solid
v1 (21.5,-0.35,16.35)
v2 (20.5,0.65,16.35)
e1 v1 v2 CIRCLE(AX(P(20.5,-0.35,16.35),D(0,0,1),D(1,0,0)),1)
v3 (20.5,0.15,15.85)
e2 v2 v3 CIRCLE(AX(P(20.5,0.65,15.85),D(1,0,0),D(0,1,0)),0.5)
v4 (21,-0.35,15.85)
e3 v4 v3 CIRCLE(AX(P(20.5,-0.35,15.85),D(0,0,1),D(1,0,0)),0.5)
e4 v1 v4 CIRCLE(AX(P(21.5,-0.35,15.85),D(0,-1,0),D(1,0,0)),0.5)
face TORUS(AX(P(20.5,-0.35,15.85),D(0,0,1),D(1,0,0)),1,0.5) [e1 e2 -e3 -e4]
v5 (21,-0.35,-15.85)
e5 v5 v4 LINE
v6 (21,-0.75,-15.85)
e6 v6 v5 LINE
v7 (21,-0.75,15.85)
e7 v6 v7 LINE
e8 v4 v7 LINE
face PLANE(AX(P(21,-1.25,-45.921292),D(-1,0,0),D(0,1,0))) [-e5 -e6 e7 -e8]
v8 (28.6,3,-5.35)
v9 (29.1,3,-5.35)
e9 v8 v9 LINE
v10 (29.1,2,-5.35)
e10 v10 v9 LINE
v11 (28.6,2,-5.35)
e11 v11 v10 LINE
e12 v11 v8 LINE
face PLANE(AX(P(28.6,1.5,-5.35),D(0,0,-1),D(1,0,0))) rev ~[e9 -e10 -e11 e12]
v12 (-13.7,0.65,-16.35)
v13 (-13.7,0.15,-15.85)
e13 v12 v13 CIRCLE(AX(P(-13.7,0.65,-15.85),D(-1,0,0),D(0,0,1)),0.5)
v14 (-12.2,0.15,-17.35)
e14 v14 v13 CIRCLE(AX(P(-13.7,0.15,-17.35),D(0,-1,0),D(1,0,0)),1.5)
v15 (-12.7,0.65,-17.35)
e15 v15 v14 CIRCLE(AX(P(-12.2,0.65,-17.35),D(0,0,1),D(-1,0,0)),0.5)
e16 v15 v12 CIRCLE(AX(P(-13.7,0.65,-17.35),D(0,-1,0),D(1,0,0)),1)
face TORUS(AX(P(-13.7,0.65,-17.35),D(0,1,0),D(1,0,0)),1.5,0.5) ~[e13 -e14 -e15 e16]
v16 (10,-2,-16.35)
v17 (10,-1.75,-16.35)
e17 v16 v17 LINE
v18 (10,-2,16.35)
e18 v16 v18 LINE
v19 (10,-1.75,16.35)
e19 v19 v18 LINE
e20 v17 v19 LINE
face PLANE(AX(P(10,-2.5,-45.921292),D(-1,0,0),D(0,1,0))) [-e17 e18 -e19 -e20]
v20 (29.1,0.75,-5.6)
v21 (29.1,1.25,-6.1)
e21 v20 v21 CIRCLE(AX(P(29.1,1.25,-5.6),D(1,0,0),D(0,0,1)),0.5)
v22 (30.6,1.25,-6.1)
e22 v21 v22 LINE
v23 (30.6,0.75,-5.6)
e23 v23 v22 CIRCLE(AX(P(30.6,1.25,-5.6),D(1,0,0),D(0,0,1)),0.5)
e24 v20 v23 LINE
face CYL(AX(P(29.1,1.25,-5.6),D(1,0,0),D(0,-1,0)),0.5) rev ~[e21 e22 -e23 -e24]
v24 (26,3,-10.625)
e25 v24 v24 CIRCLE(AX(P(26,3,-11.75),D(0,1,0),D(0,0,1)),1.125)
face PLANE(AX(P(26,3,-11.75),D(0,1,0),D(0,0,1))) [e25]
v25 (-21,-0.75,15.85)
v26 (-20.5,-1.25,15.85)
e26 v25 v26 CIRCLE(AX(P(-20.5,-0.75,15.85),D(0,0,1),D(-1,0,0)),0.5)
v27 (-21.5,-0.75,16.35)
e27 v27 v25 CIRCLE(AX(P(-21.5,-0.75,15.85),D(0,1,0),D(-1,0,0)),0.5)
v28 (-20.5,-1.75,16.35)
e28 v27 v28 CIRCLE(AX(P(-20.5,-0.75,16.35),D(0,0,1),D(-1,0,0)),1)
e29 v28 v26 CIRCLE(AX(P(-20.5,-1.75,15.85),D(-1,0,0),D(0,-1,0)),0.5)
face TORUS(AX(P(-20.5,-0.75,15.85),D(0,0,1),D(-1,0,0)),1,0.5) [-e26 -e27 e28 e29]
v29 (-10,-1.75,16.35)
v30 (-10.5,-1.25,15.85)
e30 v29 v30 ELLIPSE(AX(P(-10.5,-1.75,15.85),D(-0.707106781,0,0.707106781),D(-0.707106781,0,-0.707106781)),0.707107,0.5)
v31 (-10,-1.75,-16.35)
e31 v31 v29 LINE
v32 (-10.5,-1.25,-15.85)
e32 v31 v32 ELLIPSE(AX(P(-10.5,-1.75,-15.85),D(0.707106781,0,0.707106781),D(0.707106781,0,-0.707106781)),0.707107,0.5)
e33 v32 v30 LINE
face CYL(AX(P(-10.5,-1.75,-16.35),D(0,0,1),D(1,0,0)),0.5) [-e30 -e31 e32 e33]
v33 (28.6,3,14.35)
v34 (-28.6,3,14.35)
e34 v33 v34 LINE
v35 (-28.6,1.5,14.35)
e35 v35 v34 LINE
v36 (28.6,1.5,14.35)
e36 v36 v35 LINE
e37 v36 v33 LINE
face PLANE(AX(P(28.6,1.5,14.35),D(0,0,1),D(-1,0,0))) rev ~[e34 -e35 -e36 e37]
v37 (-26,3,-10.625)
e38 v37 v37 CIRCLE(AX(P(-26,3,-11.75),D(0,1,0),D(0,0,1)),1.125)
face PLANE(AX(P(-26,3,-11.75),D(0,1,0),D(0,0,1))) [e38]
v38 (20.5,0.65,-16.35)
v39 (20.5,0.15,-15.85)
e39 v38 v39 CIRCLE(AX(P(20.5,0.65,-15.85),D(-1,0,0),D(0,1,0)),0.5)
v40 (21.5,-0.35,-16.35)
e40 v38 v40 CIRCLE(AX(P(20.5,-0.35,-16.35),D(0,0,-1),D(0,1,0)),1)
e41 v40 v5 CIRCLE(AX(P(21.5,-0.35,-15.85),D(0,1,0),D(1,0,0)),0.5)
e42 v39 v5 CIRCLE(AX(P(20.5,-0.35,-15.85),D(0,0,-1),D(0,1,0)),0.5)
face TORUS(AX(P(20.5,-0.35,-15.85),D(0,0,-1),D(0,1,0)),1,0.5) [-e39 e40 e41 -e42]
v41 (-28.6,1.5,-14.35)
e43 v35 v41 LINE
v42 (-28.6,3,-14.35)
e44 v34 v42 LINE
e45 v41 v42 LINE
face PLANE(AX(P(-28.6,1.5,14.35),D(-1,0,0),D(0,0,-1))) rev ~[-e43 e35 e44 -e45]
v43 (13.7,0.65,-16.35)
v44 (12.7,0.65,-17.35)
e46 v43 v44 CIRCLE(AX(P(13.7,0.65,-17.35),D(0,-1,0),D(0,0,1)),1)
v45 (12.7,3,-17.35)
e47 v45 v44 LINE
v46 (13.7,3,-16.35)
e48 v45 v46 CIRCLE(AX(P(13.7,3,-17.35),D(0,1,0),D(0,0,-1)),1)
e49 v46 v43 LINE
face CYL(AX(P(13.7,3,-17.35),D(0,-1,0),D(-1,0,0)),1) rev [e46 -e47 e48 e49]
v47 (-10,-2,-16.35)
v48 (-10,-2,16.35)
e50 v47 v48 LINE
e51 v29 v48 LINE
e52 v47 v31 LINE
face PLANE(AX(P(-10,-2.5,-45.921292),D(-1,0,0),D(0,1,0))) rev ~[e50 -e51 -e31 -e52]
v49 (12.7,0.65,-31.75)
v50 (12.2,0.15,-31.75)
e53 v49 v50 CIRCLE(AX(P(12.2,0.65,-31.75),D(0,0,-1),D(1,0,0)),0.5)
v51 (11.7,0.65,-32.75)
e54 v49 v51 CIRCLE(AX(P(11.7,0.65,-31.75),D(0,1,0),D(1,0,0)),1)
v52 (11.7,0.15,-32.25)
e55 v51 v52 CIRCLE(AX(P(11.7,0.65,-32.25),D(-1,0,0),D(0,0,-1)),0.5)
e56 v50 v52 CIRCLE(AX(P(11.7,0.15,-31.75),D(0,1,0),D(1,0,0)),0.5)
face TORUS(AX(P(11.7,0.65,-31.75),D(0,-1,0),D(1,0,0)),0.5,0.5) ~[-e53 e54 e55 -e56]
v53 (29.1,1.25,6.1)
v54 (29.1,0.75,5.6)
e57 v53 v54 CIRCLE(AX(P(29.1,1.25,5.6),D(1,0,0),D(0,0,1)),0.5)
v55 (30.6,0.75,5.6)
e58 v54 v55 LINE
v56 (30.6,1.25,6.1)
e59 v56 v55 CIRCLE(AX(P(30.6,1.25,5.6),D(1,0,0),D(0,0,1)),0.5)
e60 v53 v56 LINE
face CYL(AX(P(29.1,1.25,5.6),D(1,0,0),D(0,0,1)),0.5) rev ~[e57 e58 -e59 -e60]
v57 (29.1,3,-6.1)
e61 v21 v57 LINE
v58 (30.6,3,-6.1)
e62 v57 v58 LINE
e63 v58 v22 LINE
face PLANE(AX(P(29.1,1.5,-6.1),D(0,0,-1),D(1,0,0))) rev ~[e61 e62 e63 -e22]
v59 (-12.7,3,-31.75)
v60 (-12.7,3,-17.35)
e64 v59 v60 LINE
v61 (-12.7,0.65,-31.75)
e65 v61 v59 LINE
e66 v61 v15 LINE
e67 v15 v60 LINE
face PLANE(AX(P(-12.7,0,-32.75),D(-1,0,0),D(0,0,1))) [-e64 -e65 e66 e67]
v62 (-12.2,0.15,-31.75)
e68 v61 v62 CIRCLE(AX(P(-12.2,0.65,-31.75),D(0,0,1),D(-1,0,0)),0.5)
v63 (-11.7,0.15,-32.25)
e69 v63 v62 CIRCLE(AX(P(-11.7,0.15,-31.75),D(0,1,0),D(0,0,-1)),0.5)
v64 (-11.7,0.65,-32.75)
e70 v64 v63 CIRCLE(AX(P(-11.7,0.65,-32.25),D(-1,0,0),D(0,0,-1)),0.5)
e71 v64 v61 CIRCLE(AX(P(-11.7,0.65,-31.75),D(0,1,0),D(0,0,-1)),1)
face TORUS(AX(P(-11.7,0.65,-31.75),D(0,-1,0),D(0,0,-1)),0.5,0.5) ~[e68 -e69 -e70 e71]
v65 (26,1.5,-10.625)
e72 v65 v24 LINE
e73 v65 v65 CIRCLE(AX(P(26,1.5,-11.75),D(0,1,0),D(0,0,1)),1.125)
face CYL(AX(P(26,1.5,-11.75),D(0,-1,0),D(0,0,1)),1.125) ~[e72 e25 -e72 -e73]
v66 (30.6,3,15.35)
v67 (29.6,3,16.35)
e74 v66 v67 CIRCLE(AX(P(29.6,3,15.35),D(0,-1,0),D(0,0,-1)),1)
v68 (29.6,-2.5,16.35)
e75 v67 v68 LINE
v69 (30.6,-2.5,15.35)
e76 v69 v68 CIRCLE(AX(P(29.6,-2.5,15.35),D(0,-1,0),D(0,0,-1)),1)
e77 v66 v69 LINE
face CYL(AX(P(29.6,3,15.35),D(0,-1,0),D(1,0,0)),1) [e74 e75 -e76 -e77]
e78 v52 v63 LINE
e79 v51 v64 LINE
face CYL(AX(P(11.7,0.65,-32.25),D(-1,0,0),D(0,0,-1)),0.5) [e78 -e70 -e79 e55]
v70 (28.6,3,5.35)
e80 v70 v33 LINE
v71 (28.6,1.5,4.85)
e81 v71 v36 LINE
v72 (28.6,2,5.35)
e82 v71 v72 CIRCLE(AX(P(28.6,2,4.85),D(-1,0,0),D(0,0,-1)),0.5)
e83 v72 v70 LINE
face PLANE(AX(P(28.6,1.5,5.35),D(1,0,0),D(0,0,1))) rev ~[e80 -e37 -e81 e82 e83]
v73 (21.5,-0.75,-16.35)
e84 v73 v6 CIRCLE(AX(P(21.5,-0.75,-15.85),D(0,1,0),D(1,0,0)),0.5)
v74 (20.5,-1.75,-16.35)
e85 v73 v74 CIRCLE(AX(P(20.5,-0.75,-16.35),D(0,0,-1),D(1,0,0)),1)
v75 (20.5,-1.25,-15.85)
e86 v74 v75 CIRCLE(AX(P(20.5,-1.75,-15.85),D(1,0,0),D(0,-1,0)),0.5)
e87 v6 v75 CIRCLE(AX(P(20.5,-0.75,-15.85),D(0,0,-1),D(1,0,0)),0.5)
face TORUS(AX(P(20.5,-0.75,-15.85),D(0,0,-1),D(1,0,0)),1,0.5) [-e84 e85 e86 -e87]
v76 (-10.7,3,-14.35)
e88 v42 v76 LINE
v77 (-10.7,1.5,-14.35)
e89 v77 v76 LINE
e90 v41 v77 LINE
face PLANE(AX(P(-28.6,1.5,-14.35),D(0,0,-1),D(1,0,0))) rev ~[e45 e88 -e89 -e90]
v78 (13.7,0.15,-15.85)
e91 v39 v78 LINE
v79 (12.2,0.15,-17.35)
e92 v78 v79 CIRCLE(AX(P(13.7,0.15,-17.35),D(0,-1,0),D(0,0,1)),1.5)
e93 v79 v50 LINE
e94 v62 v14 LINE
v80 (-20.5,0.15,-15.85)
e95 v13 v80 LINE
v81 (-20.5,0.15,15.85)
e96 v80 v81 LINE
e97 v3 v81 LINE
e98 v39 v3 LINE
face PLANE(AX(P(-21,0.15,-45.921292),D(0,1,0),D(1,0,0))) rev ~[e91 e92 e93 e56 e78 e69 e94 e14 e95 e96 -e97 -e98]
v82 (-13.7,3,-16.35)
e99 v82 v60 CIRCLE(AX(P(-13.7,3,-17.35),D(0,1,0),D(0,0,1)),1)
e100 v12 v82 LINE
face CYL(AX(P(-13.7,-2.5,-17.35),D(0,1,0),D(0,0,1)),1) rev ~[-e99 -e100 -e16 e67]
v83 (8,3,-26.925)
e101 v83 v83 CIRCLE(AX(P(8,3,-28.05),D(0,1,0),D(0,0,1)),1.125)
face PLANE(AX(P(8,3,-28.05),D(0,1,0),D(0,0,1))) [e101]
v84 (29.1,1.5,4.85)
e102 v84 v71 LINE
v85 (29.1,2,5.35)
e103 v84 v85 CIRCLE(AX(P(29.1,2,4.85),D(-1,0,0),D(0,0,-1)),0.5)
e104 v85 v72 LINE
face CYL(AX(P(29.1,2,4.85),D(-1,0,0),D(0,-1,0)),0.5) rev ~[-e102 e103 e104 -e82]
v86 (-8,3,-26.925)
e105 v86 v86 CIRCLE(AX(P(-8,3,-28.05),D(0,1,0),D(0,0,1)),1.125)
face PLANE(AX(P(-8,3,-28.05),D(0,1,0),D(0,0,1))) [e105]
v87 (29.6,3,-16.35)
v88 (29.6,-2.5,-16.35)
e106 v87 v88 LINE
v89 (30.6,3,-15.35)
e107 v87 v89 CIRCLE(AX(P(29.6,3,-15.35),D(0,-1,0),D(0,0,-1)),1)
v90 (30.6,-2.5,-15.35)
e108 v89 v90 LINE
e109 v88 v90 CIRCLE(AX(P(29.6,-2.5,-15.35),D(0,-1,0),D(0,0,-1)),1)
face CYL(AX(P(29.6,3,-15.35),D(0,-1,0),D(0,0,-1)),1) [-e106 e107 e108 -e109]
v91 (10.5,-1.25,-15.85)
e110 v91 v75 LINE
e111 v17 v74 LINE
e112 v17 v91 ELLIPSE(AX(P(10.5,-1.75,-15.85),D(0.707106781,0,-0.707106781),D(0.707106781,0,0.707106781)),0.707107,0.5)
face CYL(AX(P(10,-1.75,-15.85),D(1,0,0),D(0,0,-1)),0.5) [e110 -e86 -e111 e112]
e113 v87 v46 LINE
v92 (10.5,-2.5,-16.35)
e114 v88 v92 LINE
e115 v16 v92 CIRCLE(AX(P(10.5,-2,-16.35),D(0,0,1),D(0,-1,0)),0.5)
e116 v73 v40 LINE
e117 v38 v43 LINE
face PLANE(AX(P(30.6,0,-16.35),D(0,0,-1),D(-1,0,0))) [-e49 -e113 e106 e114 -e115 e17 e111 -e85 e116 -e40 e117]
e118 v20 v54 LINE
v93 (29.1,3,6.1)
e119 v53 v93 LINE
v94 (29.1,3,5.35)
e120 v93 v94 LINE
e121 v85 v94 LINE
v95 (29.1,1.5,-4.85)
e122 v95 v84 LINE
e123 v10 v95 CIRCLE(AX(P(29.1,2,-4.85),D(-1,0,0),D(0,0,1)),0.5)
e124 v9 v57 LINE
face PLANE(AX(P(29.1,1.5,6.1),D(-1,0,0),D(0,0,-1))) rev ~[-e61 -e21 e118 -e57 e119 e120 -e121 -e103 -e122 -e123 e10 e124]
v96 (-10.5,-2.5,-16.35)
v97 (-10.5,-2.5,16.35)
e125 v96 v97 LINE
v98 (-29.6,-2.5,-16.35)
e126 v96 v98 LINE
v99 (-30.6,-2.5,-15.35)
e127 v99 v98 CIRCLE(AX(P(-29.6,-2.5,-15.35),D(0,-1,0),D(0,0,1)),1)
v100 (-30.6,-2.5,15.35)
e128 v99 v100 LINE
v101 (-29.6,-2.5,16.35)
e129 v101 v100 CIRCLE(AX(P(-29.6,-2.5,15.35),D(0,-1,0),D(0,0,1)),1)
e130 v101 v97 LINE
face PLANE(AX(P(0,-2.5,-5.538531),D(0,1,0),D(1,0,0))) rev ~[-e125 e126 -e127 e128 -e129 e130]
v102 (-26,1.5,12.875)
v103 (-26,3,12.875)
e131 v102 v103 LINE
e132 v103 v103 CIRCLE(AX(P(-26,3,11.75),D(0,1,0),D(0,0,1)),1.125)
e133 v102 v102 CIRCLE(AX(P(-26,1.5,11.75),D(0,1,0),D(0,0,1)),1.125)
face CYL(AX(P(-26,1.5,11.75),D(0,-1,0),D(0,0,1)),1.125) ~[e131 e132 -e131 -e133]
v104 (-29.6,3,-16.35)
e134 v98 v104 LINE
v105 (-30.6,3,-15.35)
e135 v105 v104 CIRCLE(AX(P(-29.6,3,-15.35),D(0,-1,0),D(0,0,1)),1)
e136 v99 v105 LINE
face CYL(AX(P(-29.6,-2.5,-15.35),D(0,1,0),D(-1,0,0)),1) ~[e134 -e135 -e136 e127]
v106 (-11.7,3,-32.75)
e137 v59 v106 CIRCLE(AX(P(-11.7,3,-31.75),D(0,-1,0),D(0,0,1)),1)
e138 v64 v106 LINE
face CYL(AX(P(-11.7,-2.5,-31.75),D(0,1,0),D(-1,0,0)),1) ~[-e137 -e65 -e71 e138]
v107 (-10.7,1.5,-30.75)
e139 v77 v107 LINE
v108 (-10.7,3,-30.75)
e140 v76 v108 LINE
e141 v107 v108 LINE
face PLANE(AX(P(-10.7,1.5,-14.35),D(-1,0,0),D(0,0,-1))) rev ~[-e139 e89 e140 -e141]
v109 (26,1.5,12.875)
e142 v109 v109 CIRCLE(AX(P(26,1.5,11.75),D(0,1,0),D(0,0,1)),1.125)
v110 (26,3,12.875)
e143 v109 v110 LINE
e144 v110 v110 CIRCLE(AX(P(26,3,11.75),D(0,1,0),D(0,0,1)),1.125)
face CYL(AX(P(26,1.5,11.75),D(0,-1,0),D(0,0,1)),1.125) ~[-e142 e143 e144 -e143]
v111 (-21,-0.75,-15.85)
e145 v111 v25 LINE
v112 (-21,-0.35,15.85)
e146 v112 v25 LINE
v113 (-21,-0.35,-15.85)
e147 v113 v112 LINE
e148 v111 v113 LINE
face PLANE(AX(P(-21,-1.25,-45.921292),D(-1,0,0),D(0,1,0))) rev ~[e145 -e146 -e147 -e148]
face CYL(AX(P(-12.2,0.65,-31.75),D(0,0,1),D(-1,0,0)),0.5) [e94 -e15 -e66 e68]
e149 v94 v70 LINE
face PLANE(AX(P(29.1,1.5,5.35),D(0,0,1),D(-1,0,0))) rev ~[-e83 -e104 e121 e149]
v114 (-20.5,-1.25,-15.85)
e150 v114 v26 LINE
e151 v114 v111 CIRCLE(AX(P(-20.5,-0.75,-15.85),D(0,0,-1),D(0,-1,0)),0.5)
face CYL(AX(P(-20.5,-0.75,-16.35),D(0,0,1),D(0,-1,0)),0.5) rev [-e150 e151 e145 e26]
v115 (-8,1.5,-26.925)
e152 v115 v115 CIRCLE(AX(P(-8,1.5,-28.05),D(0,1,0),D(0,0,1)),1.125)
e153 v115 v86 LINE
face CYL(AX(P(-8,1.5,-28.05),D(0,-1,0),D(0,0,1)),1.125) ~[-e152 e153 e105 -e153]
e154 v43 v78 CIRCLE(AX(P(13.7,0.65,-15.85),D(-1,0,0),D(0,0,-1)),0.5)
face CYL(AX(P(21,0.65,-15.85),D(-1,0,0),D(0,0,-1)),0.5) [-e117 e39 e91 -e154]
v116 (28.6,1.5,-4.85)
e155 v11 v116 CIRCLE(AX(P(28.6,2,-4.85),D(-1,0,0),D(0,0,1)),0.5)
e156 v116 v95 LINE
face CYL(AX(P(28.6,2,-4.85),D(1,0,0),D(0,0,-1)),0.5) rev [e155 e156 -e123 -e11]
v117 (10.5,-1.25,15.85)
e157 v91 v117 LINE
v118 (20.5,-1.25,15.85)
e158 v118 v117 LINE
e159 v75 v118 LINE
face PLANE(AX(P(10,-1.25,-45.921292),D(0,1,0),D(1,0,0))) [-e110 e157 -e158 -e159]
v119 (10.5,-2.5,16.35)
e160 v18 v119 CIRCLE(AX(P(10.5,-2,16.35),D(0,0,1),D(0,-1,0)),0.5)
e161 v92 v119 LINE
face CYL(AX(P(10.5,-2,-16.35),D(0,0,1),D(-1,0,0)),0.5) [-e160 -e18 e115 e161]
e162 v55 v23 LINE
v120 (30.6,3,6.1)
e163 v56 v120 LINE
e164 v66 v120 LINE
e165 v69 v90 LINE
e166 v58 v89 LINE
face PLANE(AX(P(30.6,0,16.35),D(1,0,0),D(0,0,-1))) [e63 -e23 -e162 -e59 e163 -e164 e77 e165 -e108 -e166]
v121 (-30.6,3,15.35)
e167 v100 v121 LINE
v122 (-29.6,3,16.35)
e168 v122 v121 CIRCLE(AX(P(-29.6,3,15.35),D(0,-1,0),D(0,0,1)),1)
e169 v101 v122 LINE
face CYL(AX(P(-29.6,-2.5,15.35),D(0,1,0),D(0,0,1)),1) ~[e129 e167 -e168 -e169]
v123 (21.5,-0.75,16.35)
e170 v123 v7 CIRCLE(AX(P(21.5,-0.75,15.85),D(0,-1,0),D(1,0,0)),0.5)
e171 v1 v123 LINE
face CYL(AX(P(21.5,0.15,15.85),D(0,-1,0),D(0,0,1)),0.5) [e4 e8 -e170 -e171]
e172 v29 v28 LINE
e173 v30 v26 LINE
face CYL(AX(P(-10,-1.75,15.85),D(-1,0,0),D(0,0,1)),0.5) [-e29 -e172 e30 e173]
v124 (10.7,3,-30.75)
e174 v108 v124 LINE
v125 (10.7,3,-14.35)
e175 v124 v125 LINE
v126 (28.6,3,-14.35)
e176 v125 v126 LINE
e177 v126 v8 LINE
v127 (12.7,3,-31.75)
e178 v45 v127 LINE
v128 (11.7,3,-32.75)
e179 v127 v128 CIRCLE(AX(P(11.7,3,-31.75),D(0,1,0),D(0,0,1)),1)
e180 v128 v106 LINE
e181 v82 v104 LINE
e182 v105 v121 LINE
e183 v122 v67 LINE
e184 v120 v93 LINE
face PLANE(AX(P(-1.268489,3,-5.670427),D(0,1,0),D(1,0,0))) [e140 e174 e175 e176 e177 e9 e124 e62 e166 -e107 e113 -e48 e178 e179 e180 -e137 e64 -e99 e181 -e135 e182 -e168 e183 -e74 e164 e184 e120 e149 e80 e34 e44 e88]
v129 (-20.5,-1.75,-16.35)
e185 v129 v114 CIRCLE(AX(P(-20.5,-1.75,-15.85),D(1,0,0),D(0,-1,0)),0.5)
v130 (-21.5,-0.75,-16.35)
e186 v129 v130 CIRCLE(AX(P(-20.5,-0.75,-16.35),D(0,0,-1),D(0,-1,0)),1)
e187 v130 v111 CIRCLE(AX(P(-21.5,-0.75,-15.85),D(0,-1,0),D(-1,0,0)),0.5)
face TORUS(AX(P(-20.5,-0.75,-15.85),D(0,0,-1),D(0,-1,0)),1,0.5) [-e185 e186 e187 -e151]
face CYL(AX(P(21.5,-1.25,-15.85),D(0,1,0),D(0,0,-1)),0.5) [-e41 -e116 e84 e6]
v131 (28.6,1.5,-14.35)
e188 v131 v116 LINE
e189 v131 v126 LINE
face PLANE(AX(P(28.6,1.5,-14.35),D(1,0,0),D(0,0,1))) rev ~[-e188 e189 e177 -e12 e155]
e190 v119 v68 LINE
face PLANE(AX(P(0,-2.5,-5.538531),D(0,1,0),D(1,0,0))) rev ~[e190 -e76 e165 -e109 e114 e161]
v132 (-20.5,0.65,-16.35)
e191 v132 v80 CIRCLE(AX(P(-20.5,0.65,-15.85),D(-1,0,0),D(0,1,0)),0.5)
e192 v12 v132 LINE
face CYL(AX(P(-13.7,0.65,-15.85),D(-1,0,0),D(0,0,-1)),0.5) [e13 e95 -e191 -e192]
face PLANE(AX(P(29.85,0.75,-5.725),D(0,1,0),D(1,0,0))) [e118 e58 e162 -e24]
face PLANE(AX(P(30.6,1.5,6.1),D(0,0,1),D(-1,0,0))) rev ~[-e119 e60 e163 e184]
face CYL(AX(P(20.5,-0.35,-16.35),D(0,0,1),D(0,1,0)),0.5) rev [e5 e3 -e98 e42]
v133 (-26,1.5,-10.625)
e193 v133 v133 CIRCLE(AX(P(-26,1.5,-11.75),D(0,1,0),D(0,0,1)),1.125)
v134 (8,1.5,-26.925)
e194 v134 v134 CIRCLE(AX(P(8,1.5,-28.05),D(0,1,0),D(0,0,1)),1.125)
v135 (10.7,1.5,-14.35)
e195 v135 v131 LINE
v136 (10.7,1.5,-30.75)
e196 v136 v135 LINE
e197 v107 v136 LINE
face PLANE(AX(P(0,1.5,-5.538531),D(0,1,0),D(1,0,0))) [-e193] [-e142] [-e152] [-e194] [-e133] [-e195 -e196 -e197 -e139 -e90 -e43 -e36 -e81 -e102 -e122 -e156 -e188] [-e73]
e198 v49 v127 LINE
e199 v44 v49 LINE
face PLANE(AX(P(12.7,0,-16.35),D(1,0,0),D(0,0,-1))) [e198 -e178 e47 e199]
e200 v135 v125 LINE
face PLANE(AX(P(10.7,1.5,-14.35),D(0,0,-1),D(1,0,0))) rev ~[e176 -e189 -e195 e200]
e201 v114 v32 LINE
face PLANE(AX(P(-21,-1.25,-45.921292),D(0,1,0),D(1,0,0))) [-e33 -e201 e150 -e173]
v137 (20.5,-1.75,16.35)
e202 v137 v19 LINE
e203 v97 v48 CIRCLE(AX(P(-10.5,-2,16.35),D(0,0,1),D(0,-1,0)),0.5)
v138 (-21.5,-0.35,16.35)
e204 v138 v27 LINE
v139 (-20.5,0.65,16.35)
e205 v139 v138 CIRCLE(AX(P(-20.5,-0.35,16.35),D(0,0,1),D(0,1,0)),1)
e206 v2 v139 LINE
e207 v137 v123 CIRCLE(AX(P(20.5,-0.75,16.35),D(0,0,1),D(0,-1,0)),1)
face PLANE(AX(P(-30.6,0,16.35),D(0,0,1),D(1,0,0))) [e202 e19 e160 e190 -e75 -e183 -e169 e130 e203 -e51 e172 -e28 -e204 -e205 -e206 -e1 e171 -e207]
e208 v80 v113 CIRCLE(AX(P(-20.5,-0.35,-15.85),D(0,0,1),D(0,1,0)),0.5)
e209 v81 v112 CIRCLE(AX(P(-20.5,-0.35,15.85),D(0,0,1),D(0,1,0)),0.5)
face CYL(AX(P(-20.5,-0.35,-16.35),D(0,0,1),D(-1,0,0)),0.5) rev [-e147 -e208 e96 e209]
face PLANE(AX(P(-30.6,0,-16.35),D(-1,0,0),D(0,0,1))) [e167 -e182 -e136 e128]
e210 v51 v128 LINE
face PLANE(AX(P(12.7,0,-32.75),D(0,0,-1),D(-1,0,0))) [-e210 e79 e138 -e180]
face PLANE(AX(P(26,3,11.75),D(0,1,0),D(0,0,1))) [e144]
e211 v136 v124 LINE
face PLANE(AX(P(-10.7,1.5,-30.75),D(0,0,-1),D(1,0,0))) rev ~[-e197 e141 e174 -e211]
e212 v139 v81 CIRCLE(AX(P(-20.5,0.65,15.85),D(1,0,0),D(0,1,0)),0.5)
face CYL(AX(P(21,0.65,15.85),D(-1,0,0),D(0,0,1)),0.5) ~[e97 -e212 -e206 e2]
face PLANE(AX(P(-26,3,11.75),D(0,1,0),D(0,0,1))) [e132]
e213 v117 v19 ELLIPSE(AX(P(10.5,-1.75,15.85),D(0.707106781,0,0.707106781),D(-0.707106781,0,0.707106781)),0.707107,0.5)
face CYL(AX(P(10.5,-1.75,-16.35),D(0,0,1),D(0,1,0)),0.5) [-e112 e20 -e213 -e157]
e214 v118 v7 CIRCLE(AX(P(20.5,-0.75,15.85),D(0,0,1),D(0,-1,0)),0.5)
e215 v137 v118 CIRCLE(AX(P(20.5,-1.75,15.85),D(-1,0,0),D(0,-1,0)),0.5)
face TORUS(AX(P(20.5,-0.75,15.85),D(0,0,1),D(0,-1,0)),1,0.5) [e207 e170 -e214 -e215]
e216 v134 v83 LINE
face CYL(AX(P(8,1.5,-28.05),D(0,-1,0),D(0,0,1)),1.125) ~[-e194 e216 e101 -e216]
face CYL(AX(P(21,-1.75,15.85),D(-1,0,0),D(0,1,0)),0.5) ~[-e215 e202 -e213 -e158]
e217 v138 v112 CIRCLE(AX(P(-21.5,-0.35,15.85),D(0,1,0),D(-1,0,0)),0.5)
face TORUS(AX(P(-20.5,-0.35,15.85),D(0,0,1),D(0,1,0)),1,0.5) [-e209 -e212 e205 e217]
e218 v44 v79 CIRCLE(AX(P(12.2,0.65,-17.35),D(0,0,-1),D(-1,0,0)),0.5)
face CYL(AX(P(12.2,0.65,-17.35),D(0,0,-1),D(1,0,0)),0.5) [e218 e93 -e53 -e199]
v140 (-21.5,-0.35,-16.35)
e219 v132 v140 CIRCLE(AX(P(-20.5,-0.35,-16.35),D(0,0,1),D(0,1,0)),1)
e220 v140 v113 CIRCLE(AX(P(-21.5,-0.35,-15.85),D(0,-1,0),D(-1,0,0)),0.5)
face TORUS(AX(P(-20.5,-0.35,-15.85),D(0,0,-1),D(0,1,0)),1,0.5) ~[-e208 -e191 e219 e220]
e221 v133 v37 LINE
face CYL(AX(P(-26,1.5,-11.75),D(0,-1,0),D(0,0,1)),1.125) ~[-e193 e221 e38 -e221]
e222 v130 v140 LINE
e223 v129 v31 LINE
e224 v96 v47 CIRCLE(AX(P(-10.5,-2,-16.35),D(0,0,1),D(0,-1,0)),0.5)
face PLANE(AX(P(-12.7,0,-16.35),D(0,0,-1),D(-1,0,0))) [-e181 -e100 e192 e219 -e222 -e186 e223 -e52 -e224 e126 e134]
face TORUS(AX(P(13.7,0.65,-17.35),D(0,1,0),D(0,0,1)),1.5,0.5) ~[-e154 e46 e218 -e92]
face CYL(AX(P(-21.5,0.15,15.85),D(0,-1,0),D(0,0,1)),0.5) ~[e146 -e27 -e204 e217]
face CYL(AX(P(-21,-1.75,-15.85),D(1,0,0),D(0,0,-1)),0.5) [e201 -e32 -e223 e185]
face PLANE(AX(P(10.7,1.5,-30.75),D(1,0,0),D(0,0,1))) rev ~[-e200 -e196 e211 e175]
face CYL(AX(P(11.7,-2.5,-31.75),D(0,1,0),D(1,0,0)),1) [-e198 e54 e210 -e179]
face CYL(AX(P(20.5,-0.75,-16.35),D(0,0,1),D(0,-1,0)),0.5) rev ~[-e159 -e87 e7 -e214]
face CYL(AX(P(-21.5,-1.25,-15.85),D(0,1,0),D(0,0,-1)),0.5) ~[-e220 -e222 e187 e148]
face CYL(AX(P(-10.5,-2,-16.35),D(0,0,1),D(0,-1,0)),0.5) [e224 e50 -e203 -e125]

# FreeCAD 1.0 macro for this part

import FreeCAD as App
import Part
import Sketcher


def edges_at(feature, points):
    """Names of the edges that pass closest to the given points."""
    edges = feature.Shape.Edges
    near = lambda p: min(range(len(edges)), key=lambda i: edges[i].distToShape(Part.Vertex(*p))[0])
    return sorted({f"Edge{near(p) + 1}" for p in points})

doc = App.newDocument("Part")
body = doc.addObject("PartDesign::Body", "Body")

# Sketch on XZ plane
sketch1 = body.newObject("Sketcher::SketchObject", "Sketch")
sketch1.AttachmentSupport = (doc.getObject("XZ_Plane"), [""])
sketch1.MapMode = "FlatFace"
sketch1.addGeometry(Part.LineSegment(App.Vector(12.7, -16.35, 0), App.Vector(12.7, -32.75, 0)), False)
sketch1.addGeometry(Part.LineSegment(App.Vector(12.7, -32.75, 0), App.Vector(-12.7, -32.75, 0)), False)
sketch1.addGeometry(Part.LineSegment(App.Vector(-12.7, -32.75, 0), App.Vector(-12.7, -16.35, 0)), False)
sketch1.addGeometry(Part.LineSegment(App.Vector(-12.7, -16.35, 0), App.Vector(-30.6, -16.35, 0)), False)
sketch1.addGeometry(Part.LineSegment(App.Vector(-30.6, -16.35, 0), App.Vector(-30.6, 16.35, 0)), False)
sketch1.addGeometry(Part.LineSegment(App.Vector(-30.6, 16.35, 0), App.Vector(30.6, 16.35, 0)), False)
sketch1.addGeometry(Part.LineSegment(App.Vector(30.6, 16.35, 0), App.Vector(30.6, -16.35, 0)), False)
sketch1.addGeometry(Part.LineSegment(App.Vector(30.6, -16.35, 0), App.Vector(12.7, -16.35, 0)), False)
sketch1.addConstraint(Sketcher.Constraint("Coincident", 0, 2, 1, 1))
sketch1.addConstraint(Sketcher.Constraint("Coincident", 1, 2, 2, 1))
sketch1.addConstraint(Sketcher.Constraint("Coincident", 2, 2, 3, 1))
sketch1.addConstraint(Sketcher.Constraint("Coincident", 3, 2, 4, 1))
sketch1.addConstraint(Sketcher.Constraint("Coincident", 4, 2, 5, 1))
sketch1.addConstraint(Sketcher.Constraint("Coincident", 5, 2, 6, 1))
sketch1.addConstraint(Sketcher.Constraint("Coincident", 6, 2, 7, 1))
sketch1.addConstraint(Sketcher.Constraint("Coincident", 7, 2, 0, 1))
sketch1.addConstraint(Sketcher.Constraint("Vertical", 0))
sketch1.addConstraint(Sketcher.Constraint("Horizontal", 1))
sketch1.addConstraint(Sketcher.Constraint("Vertical", 2))
sketch1.addConstraint(Sketcher.Constraint("Horizontal", 3))
sketch1.addConstraint(Sketcher.Constraint("Vertical", 4))
sketch1.addConstraint(Sketcher.Constraint("Horizontal", 5))
sketch1.addConstraint(Sketcher.Constraint("Vertical", 6))
sketch1.addConstraint(Sketcher.Constraint("Horizontal", 7))
sketch1.addConstraint(Sketcher.Constraint("Symmetric", 3, 2, 5, 2, -1, 1))
sketch1.addConstraint(Sketcher.Constraint("Symmetric", 2, 2, 7, 2, -2))
sketch1.addConstraint(Sketcher.Constraint("DistanceX", 1, 2, 1, 1, 25.4))
sketch1.addConstraint(Sketcher.Constraint("DistanceX", 3, 2, 3, 1, 17.9))
sketch1.addConstraint(Sketcher.Constraint("DistanceY", 0, 2, 0, 1, 16.4))
sketch1.addConstraint(Sketcher.Constraint("DistanceY", 4, 1, 4, 2, 32.7))
pad1 = body.newObject("PartDesign::Pad", "Pad")
pad1.Profile = sketch1
pad1.Length = 1.5
pad1.Reversed = True

# Sketch on XZ plane
sketch2 = body.newObject("Sketcher::SketchObject", "Sketch001")
sketch2.AttachmentSupport = (doc.getObject("XZ_Plane"), [""])
sketch2.MapMode = "FlatFace"
sketch2.AttachmentOffset = App.Placement(App.Vector(0, 0, -1.5), App.Rotation())
sketch2.addGeometry(Part.LineSegment(App.Vector(-30.6, -16.35, 0), App.Vector(-30.6, 16.35, 0)), False)
sketch2.addGeometry(Part.LineSegment(App.Vector(-30.6, 16.35, 0), App.Vector(30.6, 16.35, 0)), False)
sketch2.addGeometry(Part.LineSegment(App.Vector(30.6, 16.35, 0), App.Vector(30.6, 6.1, 0)), False)
sketch2.addGeometry(Part.LineSegment(App.Vector(30.6, 6.1, 0), App.Vector(29.1, 6.1, 0)), False)
sketch2.addGeometry(Part.LineSegment(App.Vector(29.1, 6.1, 0), App.Vector(29.1, 5.35, 0)), False)
sketch2.addGeometry(Part.LineSegment(App.Vector(29.1, 5.35, 0), App.Vector(28.6, 5.35, 0)), False)
sketch2.addGeometry(Part.LineSegment(App.Vector(28.6, 5.35, 0), App.Vector(28.6, 14.35, 0)), False)
sketch2.addGeometry(Part.LineSegment(App.Vector(28.6, 14.35, 0), App.Vector(-28.6, 14.35, 0)), False)
sketch2.addGeometry(Part.LineSegment(App.Vector(-28.6, 14.35, 0), App.Vector(-28.6, -14.35, 0)), False)
sketch2.addGeometry(Part.LineSegment(App.Vector(-28.6, -14.35, 0), App.Vector(-10.7, -14.35, 0)), False)
sketch2.addGeometry(Part.LineSegment(App.Vector(-10.7, -14.35, 0), App.Vector(-10.7, -30.75, 0)), False)
sketch2.addGeometry(Part.LineSegment(App.Vector(-10.7, -30.75, 0), App.Vector(10.7, -30.75, 0)), False)
sketch2.addGeometry(Part.LineSegment(App.Vector(10.7, -30.75, 0), App.Vector(10.7, -14.35, 0)), False)
sketch2.addGeometry(Part.LineSegment(App.Vector(10.7, -14.35, 0), App.Vector(28.6, -14.35, 0)), False)
sketch2.addGeometry(Part.LineSegment(App.Vector(28.6, -14.35, 0), App.Vector(28.6, -5.35, 0)), False)
sketch2.addGeometry(Part.LineSegment(App.Vector(28.6, -5.35, 0), App.Vector(29.1, -5.35, 0)), False)
sketch2.addGeometry(Part.LineSegment(App.Vector(29.1, -5.35, 0), App.Vector(29.1, -6.1, 0)), False)
sketch2.addGeometry(Part.LineSegment(App.Vector(29.1, -6.1, 0), App.Vector(30.6, -6.1, 0)), False)
sketch2.addGeometry(Part.LineSegment(App.Vector(30.6, -6.1, 0), App.Vector(30.6, -16.35, 0)), False)
sketch2.addGeometry(Part.LineSegment(App.Vector(30.6, -16.35, 0), App.Vector(12.7, -16.35, 0)), False)
sketch2.addGeometry(Part.LineSegment(App.Vector(12.7, -16.35, 0), App.Vector(12.7, -32.75, 0)), False)
sketch2.addGeometry(Part.LineSegment(App.Vector(12.7, -32.75, 0), App.Vector(-12.7, -32.75, 0)), False)
sketch2.addGeometry(Part.LineSegment(App.Vector(-12.7, -32.75, 0), App.Vector(-12.7, -16.35, 0)), False)
sketch2.addGeometry(Part.LineSegment(App.Vector(-12.7, -16.35, 0), App.Vector(-30.6, -16.35, 0)), False)
sketch2.addGeometry(Part.Circle(App.Vector(-26, -11.75, 0), App.Vector(0, 0, 1), 1.125), False)
sketch2.addGeometry(Part.Circle(App.Vector(-26, 11.75, 0), App.Vector(0, 0, 1), 1.125), False)
sketch2.addGeometry(Part.Circle(App.Vector(26, 11.75, 0), App.Vector(0, 0, 1), 1.125), False)
sketch2.addGeometry(Part.Circle(App.Vector(26, -11.75, 0), App.Vector(0, 0, 1), 1.125), False)
sketch2.addGeometry(Part.Circle(App.Vector(8, -28.05, 0), App.Vector(0, 0, 1), 1.125), False)
sketch2.addGeometry(Part.Circle(App.Vector(-8, -28.05, 0), App.Vector(0, 0, 1), 1.125), False)
sketch2.addConstraint(Sketcher.Constraint("Coincident", 0, 2, 1, 1))
sketch2.addConstraint(Sketcher.Constraint("Coincident", 1, 2, 2, 1))
sketch2.addConstraint(Sketcher.Constraint("Coincident", 2, 2, 3, 1))
sketch2.addConstraint(Sketcher.Constraint("Coincident", 3, 2, 4, 1))
sketch2.addConstraint(Sketcher.Constraint("Coincident", 4, 2, 5, 1))
sketch2.addConstraint(Sketcher.Constraint("Coincident", 5, 2, 6, 1))
sketch2.addConstraint(Sketcher.Constraint("Coincident", 6, 2, 7, 1))
sketch2.addConstraint(Sketcher.Constraint("Coincident", 7, 2, 8, 1))
sketch2.addConstraint(Sketcher.Constraint("Coincident", 8, 2, 9, 1))
sketch2.addConstraint(Sketcher.Constraint("Coincident", 9, 2, 10, 1))
sketch2.addConstraint(Sketcher.Constraint("Coincident", 10, 2, 11, 1))
sketch2.addConstraint(Sketcher.Constraint("Coincident", 11, 2, 12, 1))
sketch2.addConstraint(Sketcher.Constraint("Coincident", 12, 2, 13, 1))
sketch2.addConstraint(Sketcher.Constraint("Coincident", 13, 2, 14, 1))
sketch2.addConstraint(Sketcher.Constraint("Coincident", 14, 2, 15, 1))
sketch2.addConstraint(Sketcher.Constraint("Coincident", 15, 2, 16, 1))
sketch2.addConstraint(Sketcher.Constraint("Coincident", 16, 2, 17, 1))
sketch2.addConstraint(Sketcher.Constraint("Coincident", 17, 2, 18, 1))
sketch2.addConstraint(Sketcher.Constraint("Coincident", 18, 2, 19, 1))
sketch2.addConstraint(Sketcher.Constraint("Coincident", 19, 2, 20, 1))
sketch2.addConstraint(Sketcher.Constraint("Coincident", 20, 2, 21, 1))
sketch2.addConstraint(Sketcher.Constraint("Coincident", 21, 2, 22, 1))
sketch2.addConstraint(Sketcher.Constraint("Coincident", 22, 2, 23, 1))
sketch2.addConstraint(Sketcher.Constraint("Coincident", 23, 2, 0, 1))
sketch2.addConstraint(Sketcher.Constraint("Vertical", 0))
sketch2.addConstraint(Sketcher.Constraint("Horizontal", 1))
sketch2.addConstraint(Sketcher.Constraint("Vertical", 2))
sketch2.addConstraint(Sketcher.Constraint("Horizontal", 3))
sketch2.addConstraint(Sketcher.Constraint("Vertical", 4))
sketch2.addConstraint(Sketcher.Constraint("Horizontal", 5))
sketch2.addConstraint(Sketcher.Constraint("Vertical", 6))
sketch2.addConstraint(Sketcher.Constraint("Horizontal", 7))
sketch2.addConstraint(Sketcher.Constraint("Vertical", 8))
sketch2.addConstraint(Sketcher.Constraint("Horizontal", 9))
sketch2.addConstraint(Sketcher.Constraint("Vertical", 10))
sketch2.addConstraint(Sketcher.Constraint("Horizontal", 11))
sketch2.addConstraint(Sketcher.Constraint("Vertical", 12))
sketch2.addConstraint(Sketcher.Constraint("Horizontal", 13))
sketch2.addConstraint(Sketcher.Constraint("Vertical", 14))
sketch2.addConstraint(Sketcher.Constraint("Horizontal", 15))
sketch2.addConstraint(Sketcher.Constraint("Vertical", 16))
sketch2.addConstraint(Sketcher.Constraint("Horizontal", 17))
sketch2.addConstraint(Sketcher.Constraint("Vertical", 18))
sketch2.addConstraint(Sketcher.Constraint("Horizontal", 19))
sketch2.addConstraint(Sketcher.Constraint("Vertical", 20))
sketch2.addConstraint(Sketcher.Constraint("Horizontal", 21))
sketch2.addConstraint(Sketcher.Constraint("Vertical", 22))
sketch2.addConstraint(Sketcher.Constraint("Horizontal", 23))
sketch2.addConstraint(Sketcher.Constraint("Equal", 24, 25))
sketch2.addConstraint(Sketcher.Constraint("Equal", 25, 26))
sketch2.addConstraint(Sketcher.Constraint("Equal", 26, 27))
sketch2.addConstraint(Sketcher.Constraint("Equal", 27, 28))
sketch2.addConstraint(Sketcher.Constraint("Equal", 28, 29))
sketch2.addConstraint(Sketcher.Constraint("Symmetric", 24, 3, 26, 3, -1, 1))
sketch2.addConstraint(Sketcher.Constraint("Symmetric", 25, 3, 27, 3, -1, 1))
sketch2.addConstraint(Sketcher.Constraint("Symmetric", 6, 2, 8, 2, -1, 1))
sketch2.addConstraint(Sketcher.Constraint("Symmetric", 7, 2, 13, 2, -1, 1))
sketch2.addConstraint(Sketcher.Constraint("Symmetric", 0, 2, 18, 2, -1, 1))
sketch2.addConstraint(Sketcher.Constraint("Symmetric", 1, 2, 23, 2, -1, 1))
sketch2.addConstraint(Sketcher.Constraint("Symmetric", 25, 3, 26, 3, -2))
sketch2.addConstraint(Sketcher.Constraint("Symmetric", 28, 3, 29, 3, -2))
sketch2.addConstraint(Sketcher.Constraint("Symmetric", 4, 2, 15, 2, -1))
sketch2.addConstraint(Sketcher.Constraint("Equal", 9, 13))
sketch2.addConstraint(Sketcher.Constraint("Equal", 13, 19))
sketch2.addConstraint(Sketcher.Constraint("Equal", 19, 23))
sketch2.addConstraint(Sketcher.Constraint("Equal", 4, 16))
sketch2.addConstraint(Sketcher.Constraint("Equal", 12, 20))
sketch2.addConstraint(Sketcher.Constraint("Diameter", 24, 2.25))
sketch2.addConstraint(Sketcher.Constraint("DistanceY", 6, 1, 6, 2, 9.0))
sketch2.addConstraint(Sketcher.Constraint("DistanceX", 1, 1, 1, 2, 61.2))
sketch2.addConstraint(Sketcher.Constraint("DistanceX", 3, 2, 3, 1, 1.5))
sketch2.addConstraint(Sketcher.Constraint("DistanceX", 5, 2, 5, 1, 0.5))
sketch2.addConstraint(Sketcher.Constraint("DistanceX", 9, 1, 9, 2, 17.9))
sketch2.addConstraint(Sketcher.Constraint("DistanceY", 0, 1, 0, 2, 32.7))
sketch2.addConstraint(Sketcher.Constraint("DistanceY", 8, 2, 8, 1, 28.7))
sketch2.addConstraint(Sketcher.Constraint("DistanceY", 10, 2, 10, 1, 16.4))
sketch2.addConstraint(Sketcher.Constraint("DistanceX", 24, 3, -1, 1, 26.0))
sketch2.addConstraint(Sketcher.Constraint("DistanceX", -1, 1, 28, 3, 8.0))
sketch2.addConstraint(Sketcher.Constraint("DistanceY", 10, 2, 24, 3, 19.0))
sketch2.addConstraint(Sketcher.Constraint("DistanceY", 2, 2, 2, 1, 10.25))
sketch2.addConstraint(Sketcher.Constraint("DistanceY", 28, 3, 27, 3, 16.3))
pad2 = body.newObject("PartDesign::Pad", "Pad001")
pad2.Profile = sketch2
pad2.Length = 1.5
pad2.Reversed = True

# Sketch on XZ plane
sketch3 = body.newObject("Sketcher::SketchObject", "Sketch002")
sketch3.AttachmentSupport = (doc.getObject("XZ_Plane"), [""])
sketch3.MapMode = "FlatFace"
sketch3.addGeometry(Part.LineSegment(App.Vector(12.7, -16.35, 0), App.Vector(12.7, -32.75, 0)), False)
sketch3.addGeometry(Part.LineSegment(App.Vector(12.7, -32.75, 0), App.Vector(-12.7, -32.75, 0)), False)
sketch3.addGeometry(Part.LineSegment(App.Vector(-12.7, -32.75, 0), App.Vector(-12.7, -16.35, 0)), False)
sketch3.addGeometry(Part.LineSegment(App.Vector(-12.7, -16.35, 0), App.Vector(-30.6, -16.35, 0)), False)
sketch3.addGeometry(Part.LineSegment(App.Vector(-30.6, -16.35, 0), App.Vector(-30.6, 16.35, 0)), False)
sketch3.addGeometry(Part.LineSegment(App.Vector(-30.6, 16.35, 0), App.Vector(30.6, 16.35, 0)), False)
sketch3.addGeometry(Part.LineSegment(App.Vector(30.6, 16.35, 0), App.Vector(30.6, -16.35, 0)), False)
sketch3.addGeometry(Part.LineSegment(App.Vector(30.6, -16.35, 0), App.Vector(12.7, -16.35, 0)), False)
sketch3.addConstraint(Sketcher.Constraint("Coincident", 0, 2, 1, 1))
sketch3.addConstraint(Sketcher.Constraint("Coincident", 1, 2, 2, 1))
sketch3.addConstraint(Sketcher.Constraint("Coincident", 2, 2, 3, 1))
sketch3.addConstraint(Sketcher.Constraint("Coincident", 3, 2, 4, 1))
sketch3.addConstraint(Sketcher.Constraint("Coincident", 4, 2, 5, 1))
sketch3.addConstraint(Sketcher.Constraint("Coincident", 5, 2, 6, 1))
sketch3.addConstraint(Sketcher.Constraint("Coincident", 6, 2, 7, 1))
sketch3.addConstraint(Sketcher.Constraint("Coincident", 7, 2, 0, 1))
sketch3.addConstraint(Sketcher.Constraint("Vertical", 0))
sketch3.addConstraint(Sketcher.Constraint("Horizontal", 1))
sketch3.addConstraint(Sketcher.Constraint("Vertical", 2))
sketch3.addConstraint(Sketcher.Constraint("Horizontal", 3))
sketch3.addConstraint(Sketcher.Constraint("Vertical", 4))
sketch3.addConstraint(Sketcher.Constraint("Horizontal", 5))
sketch3.addConstraint(Sketcher.Constraint("Vertical", 6))
sketch3.addConstraint(Sketcher.Constraint("Horizontal", 7))
sketch3.addConstraint(Sketcher.Constraint("Symmetric", 3, 2, 5, 2, -1, 1))
sketch3.addConstraint(Sketcher.Constraint("Symmetric", 2, 2, 7, 2, -2))
sketch3.addConstraint(Sketcher.Constraint("DistanceX", 1, 2, 1, 1, 25.4))
sketch3.addConstraint(Sketcher.Constraint("DistanceX", 3, 2, 3, 1, 17.9))
sketch3.addConstraint(Sketcher.Constraint("DistanceY", 0, 2, 0, 1, 16.4))
sketch3.addConstraint(Sketcher.Constraint("DistanceY", 4, 1, 4, 2, 32.7))
pad3 = body.newObject("PartDesign::Pad", "Pad002")
pad3.Profile = sketch3
pad3.Length = 2.5
doc.recompute()

fillet = body.newObject("PartDesign::Fillet", "Fillet")
fillet.Base = (pad3, edges_at(pad3, [
    (30.6, 0.25, 16.35),
    (-30.6, 0.25, 16.35),
    (-30.6, 0.25, -16.35),
    (-12.7, 0.25, -16.35),
    (-12.7, 0.25, -32.75),
    (12.7, 0.25, -32.75),
    (12.7, 0.25, -16.35),
    (30.6, 0.25, -16.35),
]))
fillet.Radius = 1

# Sketch on XY plane
sketch4 = body.newObject("Sketcher::SketchObject", "Sketch003")
sketch4.AttachmentSupport = (doc.getObject("XY_Plane"), [""])
sketch4.MapMode = "FlatFace"
sketch4.addGeometry(Part.LineSegment(App.Vector(-21, 0.15, 0), App.Vector(-21, -1.25, 0)), False)
sketch4.addGeometry(Part.LineSegment(App.Vector(-21, -1.25, 0), App.Vector(-10, -1.25, 0)), False)
sketch4.addGeometry(Part.LineSegment(App.Vector(-10, -1.25, 0), App.Vector(-10, -2.5, 0)), False)
sketch4.addGeometry(Part.LineSegment(App.Vector(-10, -2.5, 0), App.Vector(10, -2.5, 0)), False)
sketch4.addGeometry(Part.LineSegment(App.Vector(10, -2.5, 0), App.Vector(10, -1.25, 0)), False)
sketch4.addGeometry(Part.LineSegment(App.Vector(10, -1.25, 0), App.Vector(21, -1.25, 0)), False)
sketch4.addGeometry(Part.LineSegment(App.Vector(21, -1.25, 0), App.Vector(21, 0.15, 0)), False)
sketch4.addGeometry(Part.LineSegment(App.Vector(21, 0.15, 0), App.Vector(-21, 0.15, 0)), False)
sketch4.addConstraint(Sketcher.Constraint("Coincident", 0, 2, 1, 1))
sketch4.addConstraint(Sketcher.Constraint("Coincident", 1, 2, 2, 1))
sketch4.addConstraint(Sketcher.Constraint("Coincident", 2, 2, 3, 1))
sketch4.addConstraint(Sketcher.Constraint("Coincident", 3, 2, 4, 1))
sketch4.addConstraint(Sketcher.Constraint("Coincident", 4, 2, 5, 1))
sketch4.addConstraint(Sketcher.Constraint("Coincident", 5, 2, 6, 1))
sketch4.addConstraint(Sketcher.Constraint("Coincident", 6, 2, 7, 1))
sketch4.addConstraint(Sketcher.Constraint("Coincident", 7, 2, 0, 1))
sketch4.addConstraint(Sketcher.Constraint("Vertical", 0))
sketch4.addConstraint(Sketcher.Constraint("Horizontal", 1))
sketch4.addConstraint(Sketcher.Constraint("Vertical", 2))
sketch4.addConstraint(Sketcher.Constraint("Horizontal", 3))
sketch4.addConstraint(Sketcher.Constraint("Vertical", 4))
sketch4.addConstraint(Sketcher.Constraint("Horizontal", 5))
sketch4.addConstraint(Sketcher.Constraint("Vertical", 6))
sketch4.addConstraint(Sketcher.Constraint("Horizontal", 7))
sketch4.addConstraint(Sketcher.Constraint("Symmetric", 1, 2, 4, 2, -2))
sketch4.addConstraint(Sketcher.Constraint("Equal", 1, 5))
sketch4.addConstraint(Sketcher.Constraint("DistanceX", 1, 1, 1, 2, 11.0))
sketch4.addConstraint(Sketcher.Constraint("DistanceX", 3, 1, 3, 2, 20.0))
sketch4.addConstraint(Sketcher.Constraint("DistanceY", 0, 2, 0, 1, 1.4))
sketch4.addConstraint(Sketcher.Constraint("DistanceY", 2, 2, 2, 1, 1.25))
sketch4.addConstraint(Sketcher.Constraint("DistanceY", 2, 2, -1, 1, 2.5))
pocket1 = body.newObject("PartDesign::Pocket", "Pocket")
pocket1.Profile = sketch4
pocket1.Type = "ThroughAll"
pocket1.Midplane = True

# Sketch on XY plane
sketch5 = body.newObject("Sketcher::SketchObject", "Sketch004")
sketch5.AttachmentSupport = (doc.getObject("XY_Plane"), [""])
sketch5.MapMode = "FlatFace"
sketch5.AttachmentOffset = App.Placement(App.Vector(0, 0, -16.35), App.Rotation())
sketch5.addGeometry(Part.LineSegment(App.Vector(15, -2.5, 0), App.Vector(15, -1.25, 0)), False)
sketch5.addGeometry(Part.LineSegment(App.Vector(15, -1.25, 0), App.Vector(-15, -1.25, 0)), False)
sketch5.addGeometry(Part.LineSegment(App.Vector(-15, -1.25, 0), App.Vector(-15, -2.5, 0)), False)
sketch5.addGeometry(Part.LineSegment(App.Vector(-15, -2.5, 0), App.Vector(15, -2.5, 0)), False)
sketch5.addConstraint(Sketcher.Constraint("Coincident", 0, 2, 1, 1))
sketch5.addConstraint(Sketcher.Constraint("Coincident", 1, 2, 2, 1))
sketch5.addConstraint(Sketcher.Constraint("Coincident", 2, 2, 3, 1))
sketch5.addConstraint(Sketcher.Constraint("Coincident", 3, 2, 0, 1))
sketch5.addConstraint(Sketcher.Constraint("Vertical", 0))
sketch5.addConstraint(Sketcher.Constraint("Horizontal", 1))
sketch5.addConstraint(Sketcher.Constraint("Vertical", 2))
sketch5.addConstraint(Sketcher.Constraint("Horizontal", 3))
sketch5.addConstraint(Sketcher.Constraint("DistanceX", 1, 2, 1, 1, 30.0))
sketch5.addConstraint(Sketcher.Constraint("DistanceX", -1, 1, 0, 2, 15.0))
sketch5.addConstraint(Sketcher.Constraint("DistanceY", 0, 1, 0, 2, 1.25))
sketch5.addConstraint(Sketcher.Constraint("DistanceY", 2, 2, -1, 1, 2.5))
pocket2 = body.newObject("PartDesign::Pocket", "Pocket001")
pocket2.Profile = sketch5
pocket2.Type = "ThroughAll"
doc.recompute()

fillet2 = body.newObject("PartDesign::Fillet", "Fillet001")
fillet2.Base = (pocket2, edges_at(pocket2, [
    (-12.407, 0.15, -32.457),
    (21, -0.55, -16.35),
    (15.5, -1.25, -16.35),
    (-15.5, -1.25, -16.35),
    (12.7, 0.15, -24.55),
    (12.993, 0.15, -16.643),
    (-12.993, 0.15, -16.643),
    (-21, -0.55, -16.35),
    (-21, -1.25, 0),
    (-21, -0.55, 16.35),
    (17.35, 0.15, -16.35),
    (12.407, 0.15, -32.457),
    (-12.7, 0.15, -24.55),
    (-17.35, 0.15, -16.35),
    (-21, 0.15, 0),
    (0, 0.15, 16.35),
    (21, 0.15, 0),
    (21, -1.25, 0),
    (0, 0.15, -32.75),
    (-15.5, -1.25, 16.35),
    (15.5, -1.25, 16.35),
    (21, -0.55, 16.35),
    (-10, -2.5, 0),
    (-10, -1.25, 0),
    (10, -1.25, 0),
    (10, -2.5, 0),
]))
fillet2.Radius = 0.5

# Sketch on XZ plane
sketch6 = body.newObject("Sketcher::SketchObject", "Sketch005")
sketch6.AttachmentSupport = (doc.getObject("XZ_Plane"), [""])
sketch6.MapMode = "FlatFace"
sketch6.AttachmentOffset = App.Placement(App.Vector(0, 0, -0.75), App.Rotation())
sketch6.addGeometry(Part.LineSegment(App.Vector(29.1, -6.1, 0), App.Vector(29.1, 6.1, 0)), False)
sketch6.addGeometry(Part.LineSegment(App.Vector(29.1, 6.1, 0), App.Vector(30.6, 6.1, 0)), False)
sketch6.addGeometry(Part.LineSegment(App.Vector(30.6, 6.1, 0), App.Vector(30.6, -6.1, 0)), False)
sketch6.addGeometry(Part.LineSegment(App.Vector(30.6, -6.1, 0), App.Vector(29.1, -6.1, 0)), False)
sketch6.addConstraint(Sketcher.Constraint("Coincident", 0, 2, 1, 1))
sketch6.addConstraint(Sketcher.Constraint("Coincident", 1, 2, 2, 1))
sketch6.addConstraint(Sketcher.Constraint("Coincident", 2, 2, 3, 1))
sketch6.addConstraint(Sketcher.Constraint("Coincident", 3, 2, 0, 1))
sketch6.addConstraint(Sketcher.Constraint("Vertical", 0))
sketch6.addConstraint(Sketcher.Constraint("Horizontal", 1))
sketch6.addConstraint(Sketcher.Constraint("Vertical", 2))
sketch6.addConstraint(Sketcher.Constraint("Horizontal", 3))
sketch6.addConstraint(Sketcher.Constraint("DistanceX", 1, 1, 1, 2, 1.5))
sketch6.addConstraint(Sketcher.Constraint("DistanceY", 0, 1, 0, 2, 12.2))
sketch6.addConstraint(Sketcher.Constraint("DistanceX", -1, 1, 0, 2, 29.1))
sketch6.addConstraint(Sketcher.Constraint("DistanceY", -1, 1, 0, 2, 6.1))
pocket3 = body.newObject("PartDesign::Pocket", "Pocket002")
pocket3.Profile = sketch6
pocket3.Length = 0.75
doc.recompute()

fillet3 = body.newObject("PartDesign::Fillet", "Fillet002")
fillet3.Base = (pocket3, edges_at(pocket3, [
    (29.85, 0.75, 6.1),
    (29.85, 0.75, -6.1),
    (28.85, 1.5, -5.35),
    (28.85, 1.5, 5.35),
]))
fillet3.Radius = 0.5

doc.recompute()
